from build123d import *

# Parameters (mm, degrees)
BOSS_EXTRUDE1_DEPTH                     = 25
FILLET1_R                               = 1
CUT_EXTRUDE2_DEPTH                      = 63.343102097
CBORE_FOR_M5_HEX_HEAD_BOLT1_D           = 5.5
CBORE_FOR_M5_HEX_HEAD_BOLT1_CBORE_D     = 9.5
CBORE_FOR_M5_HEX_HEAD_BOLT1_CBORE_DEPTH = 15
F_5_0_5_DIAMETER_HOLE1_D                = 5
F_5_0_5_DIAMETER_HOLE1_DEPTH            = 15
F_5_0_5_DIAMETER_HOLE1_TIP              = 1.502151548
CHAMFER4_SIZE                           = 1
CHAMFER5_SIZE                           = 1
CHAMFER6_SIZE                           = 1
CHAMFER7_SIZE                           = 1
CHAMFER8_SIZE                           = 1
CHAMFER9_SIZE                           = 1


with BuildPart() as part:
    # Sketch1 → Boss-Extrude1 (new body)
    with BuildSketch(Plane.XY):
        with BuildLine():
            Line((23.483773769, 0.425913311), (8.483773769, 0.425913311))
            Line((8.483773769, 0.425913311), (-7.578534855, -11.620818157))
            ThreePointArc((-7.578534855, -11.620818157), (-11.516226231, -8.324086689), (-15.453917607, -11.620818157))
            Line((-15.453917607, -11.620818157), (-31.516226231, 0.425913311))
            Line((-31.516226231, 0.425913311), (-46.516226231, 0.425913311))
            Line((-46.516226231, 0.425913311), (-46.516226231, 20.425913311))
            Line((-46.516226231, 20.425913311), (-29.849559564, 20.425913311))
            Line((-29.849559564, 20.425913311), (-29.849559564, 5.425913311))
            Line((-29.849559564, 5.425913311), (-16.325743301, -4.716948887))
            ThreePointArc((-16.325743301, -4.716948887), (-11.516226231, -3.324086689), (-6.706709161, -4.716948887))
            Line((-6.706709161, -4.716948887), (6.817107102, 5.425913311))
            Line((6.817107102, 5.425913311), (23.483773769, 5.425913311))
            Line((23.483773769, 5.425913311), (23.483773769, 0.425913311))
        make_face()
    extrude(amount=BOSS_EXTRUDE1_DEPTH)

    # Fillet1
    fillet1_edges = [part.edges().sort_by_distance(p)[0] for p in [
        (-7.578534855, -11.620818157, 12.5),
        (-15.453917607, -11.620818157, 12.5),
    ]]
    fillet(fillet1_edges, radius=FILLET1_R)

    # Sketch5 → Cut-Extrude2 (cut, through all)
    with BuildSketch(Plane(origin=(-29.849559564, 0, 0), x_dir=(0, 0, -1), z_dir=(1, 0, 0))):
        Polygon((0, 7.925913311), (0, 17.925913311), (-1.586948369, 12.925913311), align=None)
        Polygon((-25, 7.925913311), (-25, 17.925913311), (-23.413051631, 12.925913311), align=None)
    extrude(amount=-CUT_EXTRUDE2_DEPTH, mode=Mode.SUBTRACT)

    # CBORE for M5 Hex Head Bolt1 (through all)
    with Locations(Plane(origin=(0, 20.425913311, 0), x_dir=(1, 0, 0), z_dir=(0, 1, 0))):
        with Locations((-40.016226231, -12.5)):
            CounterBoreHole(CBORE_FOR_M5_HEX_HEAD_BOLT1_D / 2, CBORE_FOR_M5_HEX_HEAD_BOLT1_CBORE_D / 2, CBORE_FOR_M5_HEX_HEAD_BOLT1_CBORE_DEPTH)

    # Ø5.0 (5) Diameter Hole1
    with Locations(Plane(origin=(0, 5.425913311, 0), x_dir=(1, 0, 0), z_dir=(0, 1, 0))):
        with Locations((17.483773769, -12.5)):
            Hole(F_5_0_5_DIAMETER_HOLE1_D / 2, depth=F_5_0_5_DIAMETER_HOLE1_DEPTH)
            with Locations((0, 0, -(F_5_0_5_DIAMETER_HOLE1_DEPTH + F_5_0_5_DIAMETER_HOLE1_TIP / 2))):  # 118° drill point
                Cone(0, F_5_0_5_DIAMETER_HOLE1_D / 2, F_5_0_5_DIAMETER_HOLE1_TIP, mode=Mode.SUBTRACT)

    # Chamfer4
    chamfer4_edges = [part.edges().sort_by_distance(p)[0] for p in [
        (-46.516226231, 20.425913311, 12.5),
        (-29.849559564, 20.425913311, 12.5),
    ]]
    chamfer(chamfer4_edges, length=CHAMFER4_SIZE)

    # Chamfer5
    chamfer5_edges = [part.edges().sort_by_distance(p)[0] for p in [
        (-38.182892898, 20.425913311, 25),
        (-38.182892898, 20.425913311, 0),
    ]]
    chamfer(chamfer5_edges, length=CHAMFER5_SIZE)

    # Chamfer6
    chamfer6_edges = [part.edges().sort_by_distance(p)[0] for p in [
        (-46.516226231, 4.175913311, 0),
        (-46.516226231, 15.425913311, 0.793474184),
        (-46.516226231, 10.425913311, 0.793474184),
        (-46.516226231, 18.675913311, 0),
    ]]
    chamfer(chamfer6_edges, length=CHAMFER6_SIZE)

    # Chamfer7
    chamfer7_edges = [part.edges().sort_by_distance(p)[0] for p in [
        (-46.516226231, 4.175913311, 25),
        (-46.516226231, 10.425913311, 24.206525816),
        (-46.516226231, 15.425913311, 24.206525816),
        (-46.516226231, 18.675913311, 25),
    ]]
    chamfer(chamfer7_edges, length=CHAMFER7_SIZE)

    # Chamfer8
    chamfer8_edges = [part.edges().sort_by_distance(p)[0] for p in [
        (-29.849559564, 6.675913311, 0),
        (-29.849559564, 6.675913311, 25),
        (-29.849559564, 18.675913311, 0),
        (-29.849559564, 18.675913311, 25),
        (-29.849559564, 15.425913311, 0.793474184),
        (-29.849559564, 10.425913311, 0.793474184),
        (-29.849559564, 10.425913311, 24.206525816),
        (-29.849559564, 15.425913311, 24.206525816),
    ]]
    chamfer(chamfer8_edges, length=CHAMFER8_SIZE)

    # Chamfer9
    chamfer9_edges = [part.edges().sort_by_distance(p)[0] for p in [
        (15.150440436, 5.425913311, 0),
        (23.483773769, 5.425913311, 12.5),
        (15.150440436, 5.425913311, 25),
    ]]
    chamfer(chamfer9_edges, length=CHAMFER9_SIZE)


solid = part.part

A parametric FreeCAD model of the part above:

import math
import FreeCAD as App
import Part
import Sketcher
from FreeCAD import Vector


def edges_at(feature, points):
    """Names of the edges that pass closest to the given points."""
    edges = feature.Shape.Edges
    near = lambda p: min(range(len(edges)), key=lambda i: edges[i].distToShape(Part.Vertex(*p))[0])
    return sorted({f"Edge{near(p) + 1}" for p in points})

doc = App.newDocument("Part")
body = doc.addObject("PartDesign::Body", "Body")

# Sketch on XY plane
sketch1 = body.newObject("Sketcher::SketchObject", "Sketch")
sketch1.AttachmentSupport = (doc.getObject("XY_Plane"), [""])
sketch1.MapMode = "FlatFace"
sketch1.addGeometry(Part.LineSegment(Vector(8.5, 0.4, 0), Vector(23.5, 0.4, 0)), False)
sketch1.addGeometry(Part.LineSegment(Vector(23.5, 0.4, 0), Vector(23.5, 5.4, 0)), False)
sketch1.addGeometry(Part.LineSegment(Vector(23.5, 5.4, 0), Vector(6.8, 5.4, 0)), False)
sketch1.addGeometry(Part.LineSegment(Vector(6.8, 5.4, 0), Vector(-6.7, -4.7, 0)), False)
sketch1.addGeometry(Part.ArcOfCircle(Part.Circle(Vector(-11.5, -12.3, 0), Vector(0, 0, 1), 9), math.radians(58), math.radians(122)), False)
sketch1.addGeometry(Part.LineSegment(Vector(-16.3, -4.7, 0), Vector(-29.8, 5.4, 0)), False)
sketch1.addGeometry(Part.LineSegment(Vector(-29.8, 5.4, 0), Vector(-29.8, 20.4, 0)), False)
sketch1.addGeometry(Part.LineSegment(Vector(-29.8, 20.4, 0), Vector(-46.5, 20.4, 0)), False)
sketch1.addGeometry(Part.LineSegment(Vector(-46.5, 20.4, 0), Vector(-46.5, 0.4, 0)), False)
sketch1.addGeometry(Part.LineSegment(Vector(-46.5, 0.4, 0), Vector(-31.5, 0.4, 0)), False)
sketch1.addGeometry(Part.LineSegment(Vector(-31.5, 0.4, 0), Vector(-15.5, -11.6, 0)), False)
sketch1.addGeometry(Part.ArcOfCircle(Part.Circle(Vector(-11.5, -12.3, 0), Vector(0, 0, 1), 4), math.radians(10), math.radians(170)), False)
sketch1.addGeometry(Part.LineSegment(Vector(-7.6, -11.6, 0), Vector(8.5, 0.4, 0)), False)
sketch1.addConstraint(Sketcher.Constraint("Coincident", 0, 2, 1, 1))
sketch1.addConstraint(Sketcher.Constraint("Coincident", 1, 2, 2, 1))
sketch1.addConstraint(Sketcher.Constraint("Coincident", 2, 2, 3, 1))
sketch1.addConstraint(Sketcher.Constraint("Coincident", 3, 2, 4, 1))
sketch1.addConstraint(Sketcher.Constraint("Coincident", 4, 2, 5, 1))
sketch1.addConstraint(Sketcher.Constraint("Coincident", 5, 2, 6, 1))
sketch1.addConstraint(Sketcher.Constraint("Coincident", 6, 2, 7, 1))
sketch1.addConstraint(Sketcher.Constraint("Coincident", 7, 2, 8, 1))
sketch1.addConstraint(Sketcher.Constraint("Coincident", 8, 2, 9, 1))
sketch1.addConstraint(Sketcher.Constraint("Coincident", 9, 2, 10, 1))
sketch1.addConstraint(Sketcher.Constraint("Coincident", 10, 2, 11, 2))
sketch1.addConstraint(Sketcher.Constraint("Coincident", 11, 1, 12, 1))
sketch1.addConstraint(Sketcher.Constraint("Coincident", 12, 2, 0, 1))
sketch1.addConstraint(Sketcher.Constraint("Horizontal", 0))
sketch1.addConstraint(Sketcher.Constraint("Vertical", 1))
sketch1.addConstraint(Sketcher.Constraint("Horizontal", 2))
sketch1.addConstraint(Sketcher.Constraint("Vertical", 6))
sketch1.addConstraint(Sketcher.Constraint("Horizontal", 7))
sketch1.addConstraint(Sketcher.Constraint("Vertical", 8))
sketch1.addConstraint(Sketcher.Constraint("Horizontal", 9))
sketch1.addConstraint(Sketcher.Constraint("Coincident", 11, 3, 4, 3))
sketch1.addConstraint(Sketcher.Constraint("Parallel", 5, 10))
sketch1.addConstraint(Sketcher.Constraint("Parallel", 3, 12))
sketch1.addConstraint(Sketcher.Constraint("Horizontal", 3, 2, 4, 2))
sketch1.addConstraint(Sketcher.Constraint("Horizontal", 2, 2, 5, 2))
sketch1.addConstraint(Sketcher.Constraint("Horizontal", 0, 2, 8, 2))
sketch1.addConstraint(Sketcher.Constraint("Horizontal", 10, 2, 11, 1))
sketch1.addConstraint(Sketcher.Constraint("Equal", 2, 7))
sketch1.addConstraint(Sketcher.Constraint("Equal", 0, 9))
sketch1.addConstraint(Sketcher.Constraint("Equal", 9, 6))
sketch1.addConstraint(Sketcher.Constraint("Radius", 4, 9.0))
sketch1.addConstraint(Sketcher.Constraint("Radius", 11, 4.0))
sketch1.addConstraint(Sketcher.Constraint("DistanceX", 0, 1, 0, 2, 15.0))
sketch1.addConstraint(Sketcher.Constraint("DistanceY", 1, 1, 1, 2, 5.0))
sketch1.addConstraint(Sketcher.Constraint("DistanceX", 4, 3, 0, 2, 35.0))
sketch1.addConstraint(Sketcher.Constraint("DistanceY", 4, 3, 0, 2, 12.75))
sketch1.addConstraint(Sketcher.Constraint("Distance", 3, 16.90477))
sketch1.addConstraint(Sketcher.Constraint("DistanceX", 2, 2, 2, 1, 16.666667))
sketch1.addConstraint(Sketcher.Constraint("DistanceX", 3, 2, -1, 1, 6.706709))
sketch1.addConstraint(Sketcher.Constraint("DistanceY", 3, 2, -1, 1, 4.716949))
pad1 = body.newObject("PartDesign::Pad", "Pad")
pad1.Profile = sketch1
pad1.Length = 25
doc.recompute()

fillet = body.newObject("PartDesign::Fillet", "Fillet")
fillet.Base = (pad1, edges_at(pad1, [(-7.579, -11.621, 12.5), (-15.454, -11.621, 12.5)]))
fillet.Radius = 1

# Sketch on YZ plane
sketch2 = body.newObject("Sketcher::SketchObject", "Sketch001")
sketch2.AttachmentSupport = (doc.getObject("YZ_Plane"), [""])
sketch2.MapMode = "FlatFace"
sketch2.AttachmentOffset = App.Placement(Vector(0, 0, -29.84956), App.Rotation())
sketch2.addGeometry(Part.LineSegment(Vector(8, 0, 0), Vector(18, 0, 0)), False)
sketch2.addGeometry(Part.LineSegment(Vector(18, 0, 0), Vector(13, 2, 0)), False)
sketch2.addGeometry(Part.LineSegment(Vector(13, 2, 0), Vector(8, 0, 0)), False)
sketch2.addGeometry(Part.LineSegment(Vector(18, 25, 0), Vector(8, 25, 0)), False)
sketch2.addGeometry(Part.LineSegment(Vector(8, 25, 0), Vector(13, 23, 0)), False)
sketch2.addGeometry(Part.LineSegment(Vector(13, 23, 0), Vector(18, 25, 0)), False)
sketch2.addConstraint(Sketcher.Constraint("Coincident", 0, 2, 1, 1))
sketch2.addConstraint(Sketcher.Constraint("Coincident", 1, 2, 2, 1))
sketch2.addConstraint(Sketcher.Constraint("Coincident", 2, 2, 0, 1))
sketch2.addConstraint(Sketcher.Constraint("Coincident", 3, 2, 4, 1))
sketch2.addConstraint(Sketcher.Constraint("Coincident", 4, 2, 5, 1))
sketch2.addConstraint(Sketcher.Constraint("Coincident", 5, 2, 3, 1))
sketch2.addConstraint(Sketcher.Constraint("Horizontal", 0))
sketch2.addConstraint(Sketcher.Constraint("Horizontal", 3))
sketch2.addConstraint(Sketcher.Constraint("PointOnObject", 0, 2, -1))
sketch2.addConstraint(Sketcher.Constraint("Parallel", 1, 4))
sketch2.addConstraint(Sketcher.Constraint("Parallel", 2, 5))
sketch2.addConstraint(Sketcher.Constraint("Vertical", 2, 2, 3, 2))
sketch2.addConstraint(Sketcher.Constraint("Vertical", 1, 2, 4, 2))
sketch2.addConstraint(Sketcher.Constraint("Vertical", 0, 2, 5, 2))
sketch2.addConstraint(Sketcher.Constraint("DistanceX", 0, 1, 0, 2, 10.0))
sketch2.addConstraint(Sketcher.Constraint("DistanceY", -1, 1, 3, 2, 25.0))
sketch2.addConstraint(Sketcher.Constraint("Distance", 1, 5.245799))
sketch2.addConstraint(Sketcher.Constraint("DistanceX", -1, 1, 0, 2, 17.925913))
pocket1 = body.newObject("PartDesign::Pocket", "Pocket")
pocket1.Profile = sketch2
pocket1.Type = "ThroughAll"

# Sketch on XZ plane
sketch3 = body.newObject("Sketcher::SketchObject", "Sketch002")
sketch3.AttachmentSupport = (doc.getObject("XZ_Plane"), [""])
sketch3.MapMode = "FlatFace"
sketch3.AttachmentOffset = App.Placement(Vector(0, 0, -20.425913), App.Rotation())
sketch3.addGeometry(Part.Circle(Vector(-40, 12.5, 0), Vector(0, 0, 1), 2.8), False)
sketch3.addConstraint(Sketcher.Constraint("Diameter", 0, 5.5))
sketch3.addConstraint(Sketcher.Constraint("DistanceY", -1, 1, 0, 3, 12.5))
sketch3.addConstraint(Sketcher.Constraint("DistanceX", 0, 3, -1, 1, 40.016226))
doc.recompute()
hole = body.newObject("PartDesign::Hole", "Hole")
hole.Profile = sketch3
hole.ThreadType = "None"
hole.Diameter = 5.5
hole.DepthType = "ThroughAll"
hole.HoleCutType = "Counterbore"
hole.HoleCutDiameter = 9.5
hole.HoleCutDepth = 15
hole.Reversed = True

# Sketch on XZ plane
sketch4 = body.newObject("Sketcher::SketchObject", "Sketch003")
sketch4.AttachmentSupport = (doc.getObject("XZ_Plane"), [""])
sketch4.MapMode = "FlatFace"
sketch4.AttachmentOffset = App.Placement(Vector(0, 0, -5.425913), App.Rotation())
sketch4.addGeometry(Part.Circle(Vector(17.5, 12.5, 0), Vector(0, 0, 1), 2.5), False)
sketch4.addConstraint(Sketcher.Constraint("Diameter", 0, 5.0))
sketch4.addConstraint(Sketcher.Constraint("DistanceY", -1, 1, 0, 3, 12.5))
sketch4.addConstraint(Sketcher.Constraint("DistanceX", -1, 1, 0, 3, 17.483774))
doc.recompute()
hole2 = body.newObject("PartDesign::Hole", "Hole001")
hole2.Profile = sketch4
hole2.ThreadType = "None"
hole2.Diameter = 5
hole2.DepthType = "Dimension"
hole2.Depth = 15
hole2.DrillPoint = "Angled"
hole2.DrillPointAngle = 118
hole2.Reversed = True
doc.recompute()

chamfer = body.newObject("PartDesign::Chamfer", "Chamfer")
chamfer.Base = (hole2, edges_at(hole2, [(-46.516, 20.426, 12.5), (-29.85, 20.426, 12.5)]))
chamfer.Size = 1
doc.recompute()

chamfer2 = body.newObject("PartDesign::Chamfer", "Chamfer001")
chamfer2.Base = (chamfer, edges_at(chamfer, [(-38.183, 20.426, 25), (-38.183, 20.426, 0)]))
chamfer2.Size = 1
doc.recompute()

chamfer3 = body.newObject("PartDesign::Chamfer", "Chamfer002")
chamfer3.Base = (chamfer2, edges_at(chamfer2, [
    (-46.516, 4.176, 0),
    (-46.516, 15.426, 0.793),
    (-46.516, 10.426, 0.793),
    (-46.516, 18.676, 0),
]))
chamfer3.Size = 1
doc.recompute()

chamfer4 = body.newObject("PartDesign::Chamfer", "Chamfer003")
chamfer4.Base = (chamfer3, edges_at(chamfer3, [
    (-46.516, 4.176, 25),
    (-46.516, 10.426, 24.207),
    (-46.516, 15.426, 24.207),
    (-46.516, 18.676, 25),
]))
chamfer4.Size = 1
doc.recompute()

chamfer5 = body.newObject("PartDesign::Chamfer", "Chamfer004")
chamfer5.Base = (chamfer4, edges_at(chamfer4, [
    (-29.85, 6.676, 0),
    (-29.85, 6.676, 25),
    (-29.85, 18.676, 0),
    (-29.85, 18.676, 25),
    (-29.85, 15.426, 0.793),
    (-29.85, 10.426, 0.793),
    (-29.85, 10.426, 24.207),
    (-29.85, 15.426, 24.207),
]))
chamfer5.Size = 1
doc.recompute()

chamfer6 = body.newObject("PartDesign::Chamfer", "Chamfer005")
chamfer6.Base = (chamfer5, edges_at(chamfer5, [(15.15, 5.426, 0), (23.484, 5.426, 12.5), (15.15, 5.426, 25)]))
chamfer6.Size = 1

doc.recompute()
